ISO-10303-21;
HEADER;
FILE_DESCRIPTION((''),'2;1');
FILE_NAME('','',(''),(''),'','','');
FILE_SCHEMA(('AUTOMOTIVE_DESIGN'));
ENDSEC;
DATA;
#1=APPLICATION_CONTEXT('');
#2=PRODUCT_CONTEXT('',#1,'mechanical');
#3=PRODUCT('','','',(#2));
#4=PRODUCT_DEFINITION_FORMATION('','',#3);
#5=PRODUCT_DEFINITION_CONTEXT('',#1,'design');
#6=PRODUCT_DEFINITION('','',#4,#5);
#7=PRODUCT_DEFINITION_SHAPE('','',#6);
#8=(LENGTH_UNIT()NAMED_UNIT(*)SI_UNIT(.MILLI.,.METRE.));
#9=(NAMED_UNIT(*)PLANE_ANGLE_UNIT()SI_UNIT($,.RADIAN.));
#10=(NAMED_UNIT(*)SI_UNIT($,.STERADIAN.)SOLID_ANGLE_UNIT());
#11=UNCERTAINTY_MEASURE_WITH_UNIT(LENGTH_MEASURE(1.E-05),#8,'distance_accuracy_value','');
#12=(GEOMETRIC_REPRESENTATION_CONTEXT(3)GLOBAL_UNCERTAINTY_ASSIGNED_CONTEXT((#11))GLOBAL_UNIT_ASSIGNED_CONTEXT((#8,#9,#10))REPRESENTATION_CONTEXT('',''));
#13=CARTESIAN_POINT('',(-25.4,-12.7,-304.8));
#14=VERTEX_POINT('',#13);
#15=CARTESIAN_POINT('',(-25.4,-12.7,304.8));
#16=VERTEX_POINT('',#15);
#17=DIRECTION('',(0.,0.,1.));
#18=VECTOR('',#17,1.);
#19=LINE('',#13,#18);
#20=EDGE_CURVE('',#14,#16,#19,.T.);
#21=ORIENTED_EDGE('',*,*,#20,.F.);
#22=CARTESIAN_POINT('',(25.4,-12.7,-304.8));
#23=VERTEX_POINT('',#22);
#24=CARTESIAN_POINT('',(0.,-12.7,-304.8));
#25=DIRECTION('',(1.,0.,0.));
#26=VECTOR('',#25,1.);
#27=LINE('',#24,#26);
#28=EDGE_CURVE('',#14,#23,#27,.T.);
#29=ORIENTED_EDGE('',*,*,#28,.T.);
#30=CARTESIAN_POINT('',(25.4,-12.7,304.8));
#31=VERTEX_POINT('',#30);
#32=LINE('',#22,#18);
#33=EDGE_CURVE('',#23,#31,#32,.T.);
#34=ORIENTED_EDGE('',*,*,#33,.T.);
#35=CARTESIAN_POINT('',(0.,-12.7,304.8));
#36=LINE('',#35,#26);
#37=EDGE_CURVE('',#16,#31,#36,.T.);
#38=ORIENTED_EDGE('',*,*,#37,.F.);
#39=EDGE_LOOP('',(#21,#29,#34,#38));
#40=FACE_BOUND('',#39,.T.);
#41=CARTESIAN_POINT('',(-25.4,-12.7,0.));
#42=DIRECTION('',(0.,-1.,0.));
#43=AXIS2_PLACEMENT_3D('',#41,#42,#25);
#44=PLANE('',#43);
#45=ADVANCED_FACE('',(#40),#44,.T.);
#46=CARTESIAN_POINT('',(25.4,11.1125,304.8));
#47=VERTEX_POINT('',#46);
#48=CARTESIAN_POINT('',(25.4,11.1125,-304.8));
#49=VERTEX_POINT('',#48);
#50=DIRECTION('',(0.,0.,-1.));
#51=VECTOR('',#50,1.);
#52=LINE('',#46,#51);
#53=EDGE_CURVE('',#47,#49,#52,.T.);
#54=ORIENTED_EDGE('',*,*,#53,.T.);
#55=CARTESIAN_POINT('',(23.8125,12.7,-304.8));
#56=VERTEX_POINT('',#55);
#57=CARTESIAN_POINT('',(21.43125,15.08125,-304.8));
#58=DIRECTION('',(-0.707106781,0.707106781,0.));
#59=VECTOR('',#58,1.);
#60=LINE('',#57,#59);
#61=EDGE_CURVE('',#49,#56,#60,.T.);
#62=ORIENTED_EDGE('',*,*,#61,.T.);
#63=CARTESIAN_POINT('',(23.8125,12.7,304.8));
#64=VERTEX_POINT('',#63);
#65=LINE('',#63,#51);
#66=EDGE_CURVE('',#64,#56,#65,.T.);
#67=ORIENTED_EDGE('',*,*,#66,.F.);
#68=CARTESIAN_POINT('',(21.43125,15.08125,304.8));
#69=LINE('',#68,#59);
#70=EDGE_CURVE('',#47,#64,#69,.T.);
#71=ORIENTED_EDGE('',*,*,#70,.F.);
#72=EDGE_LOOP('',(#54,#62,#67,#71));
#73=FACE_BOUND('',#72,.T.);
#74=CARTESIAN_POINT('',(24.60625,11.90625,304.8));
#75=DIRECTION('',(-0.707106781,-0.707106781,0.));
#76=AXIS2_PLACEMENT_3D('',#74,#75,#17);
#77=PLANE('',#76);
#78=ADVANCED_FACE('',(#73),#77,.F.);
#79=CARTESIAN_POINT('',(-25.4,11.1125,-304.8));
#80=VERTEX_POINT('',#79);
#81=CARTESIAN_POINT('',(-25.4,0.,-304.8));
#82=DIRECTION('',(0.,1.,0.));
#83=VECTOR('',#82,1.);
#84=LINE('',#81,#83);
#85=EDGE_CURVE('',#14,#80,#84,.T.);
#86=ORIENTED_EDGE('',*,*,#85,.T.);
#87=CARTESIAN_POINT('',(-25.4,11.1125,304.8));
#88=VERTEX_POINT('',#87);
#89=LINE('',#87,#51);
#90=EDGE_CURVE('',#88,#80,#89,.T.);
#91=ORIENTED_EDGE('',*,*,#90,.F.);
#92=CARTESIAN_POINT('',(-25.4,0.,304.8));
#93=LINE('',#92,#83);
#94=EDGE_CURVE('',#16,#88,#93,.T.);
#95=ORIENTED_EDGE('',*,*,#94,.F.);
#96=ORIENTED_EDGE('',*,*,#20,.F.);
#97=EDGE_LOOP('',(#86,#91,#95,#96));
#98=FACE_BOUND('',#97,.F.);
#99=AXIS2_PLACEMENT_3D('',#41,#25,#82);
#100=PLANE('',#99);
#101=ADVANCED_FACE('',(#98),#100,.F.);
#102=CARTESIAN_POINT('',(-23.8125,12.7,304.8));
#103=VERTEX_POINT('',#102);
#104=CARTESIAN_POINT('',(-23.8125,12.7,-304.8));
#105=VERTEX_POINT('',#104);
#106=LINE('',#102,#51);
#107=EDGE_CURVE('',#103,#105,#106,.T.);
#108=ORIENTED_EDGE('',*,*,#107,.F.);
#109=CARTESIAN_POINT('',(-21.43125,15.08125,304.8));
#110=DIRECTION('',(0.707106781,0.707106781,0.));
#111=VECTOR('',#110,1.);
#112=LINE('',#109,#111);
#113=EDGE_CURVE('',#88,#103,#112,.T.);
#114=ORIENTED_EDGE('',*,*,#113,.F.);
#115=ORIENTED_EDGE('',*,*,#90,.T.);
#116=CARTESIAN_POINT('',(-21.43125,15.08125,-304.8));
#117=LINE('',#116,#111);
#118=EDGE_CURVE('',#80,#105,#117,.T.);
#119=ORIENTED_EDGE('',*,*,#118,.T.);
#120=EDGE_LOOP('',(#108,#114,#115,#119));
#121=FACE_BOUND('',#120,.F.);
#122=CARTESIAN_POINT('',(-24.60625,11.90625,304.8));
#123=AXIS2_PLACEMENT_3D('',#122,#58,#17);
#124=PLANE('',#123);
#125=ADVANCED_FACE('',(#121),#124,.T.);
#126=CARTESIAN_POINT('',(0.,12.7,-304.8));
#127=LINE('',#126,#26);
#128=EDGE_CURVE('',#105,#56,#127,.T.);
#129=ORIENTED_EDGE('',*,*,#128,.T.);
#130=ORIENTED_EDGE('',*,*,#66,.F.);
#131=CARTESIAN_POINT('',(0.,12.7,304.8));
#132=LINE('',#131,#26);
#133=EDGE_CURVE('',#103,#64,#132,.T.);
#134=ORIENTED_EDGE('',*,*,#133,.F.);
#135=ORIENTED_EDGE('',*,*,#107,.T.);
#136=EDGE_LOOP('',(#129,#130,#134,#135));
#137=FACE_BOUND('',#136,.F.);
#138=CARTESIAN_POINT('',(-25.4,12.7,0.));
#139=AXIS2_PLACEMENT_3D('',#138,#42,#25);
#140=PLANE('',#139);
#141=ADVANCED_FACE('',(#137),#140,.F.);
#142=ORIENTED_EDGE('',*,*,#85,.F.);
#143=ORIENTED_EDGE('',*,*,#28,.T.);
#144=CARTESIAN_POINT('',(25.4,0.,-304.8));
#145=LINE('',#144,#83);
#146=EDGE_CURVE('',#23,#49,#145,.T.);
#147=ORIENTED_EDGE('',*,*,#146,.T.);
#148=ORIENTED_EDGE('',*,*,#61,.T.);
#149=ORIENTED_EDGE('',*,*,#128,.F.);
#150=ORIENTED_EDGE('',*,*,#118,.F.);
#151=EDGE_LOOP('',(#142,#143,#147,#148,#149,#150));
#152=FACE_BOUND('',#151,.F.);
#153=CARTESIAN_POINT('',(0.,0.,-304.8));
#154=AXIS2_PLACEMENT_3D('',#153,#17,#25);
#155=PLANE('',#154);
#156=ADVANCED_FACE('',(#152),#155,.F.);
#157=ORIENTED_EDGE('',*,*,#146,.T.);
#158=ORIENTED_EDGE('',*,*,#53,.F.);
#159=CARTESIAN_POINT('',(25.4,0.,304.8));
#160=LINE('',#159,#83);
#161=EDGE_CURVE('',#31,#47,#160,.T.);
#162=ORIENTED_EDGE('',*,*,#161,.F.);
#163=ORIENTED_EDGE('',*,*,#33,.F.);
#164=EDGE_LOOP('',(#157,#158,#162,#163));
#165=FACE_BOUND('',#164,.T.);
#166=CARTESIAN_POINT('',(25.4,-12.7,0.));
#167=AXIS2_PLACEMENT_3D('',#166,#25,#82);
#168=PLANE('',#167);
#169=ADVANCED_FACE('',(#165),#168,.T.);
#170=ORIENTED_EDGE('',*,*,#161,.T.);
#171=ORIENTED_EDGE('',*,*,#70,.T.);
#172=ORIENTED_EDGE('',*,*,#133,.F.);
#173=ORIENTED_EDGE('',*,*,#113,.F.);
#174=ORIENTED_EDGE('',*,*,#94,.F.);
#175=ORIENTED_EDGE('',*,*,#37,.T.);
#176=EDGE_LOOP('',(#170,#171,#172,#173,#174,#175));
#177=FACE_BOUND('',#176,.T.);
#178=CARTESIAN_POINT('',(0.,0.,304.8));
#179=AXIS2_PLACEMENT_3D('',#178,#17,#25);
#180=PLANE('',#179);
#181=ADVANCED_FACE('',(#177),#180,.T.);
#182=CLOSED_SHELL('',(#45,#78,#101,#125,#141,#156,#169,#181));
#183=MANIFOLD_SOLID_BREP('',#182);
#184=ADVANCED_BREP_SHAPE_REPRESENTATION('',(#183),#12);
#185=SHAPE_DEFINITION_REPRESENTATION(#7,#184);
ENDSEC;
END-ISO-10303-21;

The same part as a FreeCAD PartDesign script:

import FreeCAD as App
import Part
import Sketcher
from FreeCAD import Vector
Q = App.Units.Quantity


def edges_at(feature, points):
    """Names of the edges that pass closest to the given points."""
    edges = feature.Shape.Edges
    near = lambda p: min(range(len(edges)), key=lambda i: edges[i].distToShape(Part.Vertex(*p))[0])
    return sorted({f"Edge{near(p) + 1}" for p in points})


def add_polygon(sketch, points):
    """Adds a closed chain of lines whose ends are joined by coincident constraints."""
    first, n = sketch.GeometryCount, len(points)
    for a, b in zip(points, points[1:] + points[:1]):
        sketch.addGeometry(Part.LineSegment(App.Vector(*a, 0), App.Vector(*b, 0)), False)
    for i in range(n):
        sketch.addConstraint(Sketcher.Constraint("Coincident", first + i, 2, first + (i + 1) % n, 1))

doc = App.newDocument("Part")
params = doc.addObject("Spreadsheet::Sheet", "Params")
for row, (alias, value) in enumerate([
    ("sketch1_width", "2 in"),
    ("sketch1_height", "1 in"),
    ("pad1_length", "24 in"),
    ("chamfer_size", "0.0625 in"),
], start=1):
    params.set(f"A{row}", alias)
    params.set(f"B{row}", "=" + value)
    params.setAlias(f"B{row}", alias)

body = doc.addObject("PartDesign::Body", "Body")

# Sketch on XY plane
sketch1 = body.newObject("Sketcher::SketchObject", "Sketch")
sketch1.AttachmentSupport = (doc.getObject("XY_Plane"), [""])
sketch1.MapMode = "FlatFace"
add_polygon(sketch1, [(-25, 13), (-25, -13), (25, -13), (25, 13)])  # lines 0-3
sketch1.addConstraint(Sketcher.Constraint("Vertical", 0))
sketch1.addConstraint(Sketcher.Constraint("Horizontal", 1))
sketch1.addConstraint(Sketcher.Constraint("Vertical", 2))
sketch1.addConstraint(Sketcher.Constraint("Horizontal", 3))
sketch1.addConstraint(Sketcher.Constraint("Symmetric", 0, 2, 2, 2, -1, 1))
sketch1.addConstraint(Sketcher.Constraint("DistanceX", 1, 1, 1, 2, Q("2 in")))
sketch1.addConstraint(Sketcher.Constraint("DistanceY", 0, 2, 0, 1, Q("1 in")))
sketch1.setExpression("Constraints[9]", "Params.sketch1_width")
sketch1.setExpression("Constraints[10]", "Params.sketch1_height")
pad1 = body.newObject("PartDesign::Pad", "Pad")
pad1.Profile = sketch1
pad1.setExpression("Length", "Params.pad1_length")
pad1.Midplane = True
doc.recompute()

chamfer = body.newObject("PartDesign::Chamfer", "Chamfer")
chamfer.Base = (pad1, edges_at(pad1, [(25.4, 12.7, 0), (-25.4, 12.7, 0)]))
chamfer.setExpression("Size", "Params.chamfer_size")

doc.recompute()
